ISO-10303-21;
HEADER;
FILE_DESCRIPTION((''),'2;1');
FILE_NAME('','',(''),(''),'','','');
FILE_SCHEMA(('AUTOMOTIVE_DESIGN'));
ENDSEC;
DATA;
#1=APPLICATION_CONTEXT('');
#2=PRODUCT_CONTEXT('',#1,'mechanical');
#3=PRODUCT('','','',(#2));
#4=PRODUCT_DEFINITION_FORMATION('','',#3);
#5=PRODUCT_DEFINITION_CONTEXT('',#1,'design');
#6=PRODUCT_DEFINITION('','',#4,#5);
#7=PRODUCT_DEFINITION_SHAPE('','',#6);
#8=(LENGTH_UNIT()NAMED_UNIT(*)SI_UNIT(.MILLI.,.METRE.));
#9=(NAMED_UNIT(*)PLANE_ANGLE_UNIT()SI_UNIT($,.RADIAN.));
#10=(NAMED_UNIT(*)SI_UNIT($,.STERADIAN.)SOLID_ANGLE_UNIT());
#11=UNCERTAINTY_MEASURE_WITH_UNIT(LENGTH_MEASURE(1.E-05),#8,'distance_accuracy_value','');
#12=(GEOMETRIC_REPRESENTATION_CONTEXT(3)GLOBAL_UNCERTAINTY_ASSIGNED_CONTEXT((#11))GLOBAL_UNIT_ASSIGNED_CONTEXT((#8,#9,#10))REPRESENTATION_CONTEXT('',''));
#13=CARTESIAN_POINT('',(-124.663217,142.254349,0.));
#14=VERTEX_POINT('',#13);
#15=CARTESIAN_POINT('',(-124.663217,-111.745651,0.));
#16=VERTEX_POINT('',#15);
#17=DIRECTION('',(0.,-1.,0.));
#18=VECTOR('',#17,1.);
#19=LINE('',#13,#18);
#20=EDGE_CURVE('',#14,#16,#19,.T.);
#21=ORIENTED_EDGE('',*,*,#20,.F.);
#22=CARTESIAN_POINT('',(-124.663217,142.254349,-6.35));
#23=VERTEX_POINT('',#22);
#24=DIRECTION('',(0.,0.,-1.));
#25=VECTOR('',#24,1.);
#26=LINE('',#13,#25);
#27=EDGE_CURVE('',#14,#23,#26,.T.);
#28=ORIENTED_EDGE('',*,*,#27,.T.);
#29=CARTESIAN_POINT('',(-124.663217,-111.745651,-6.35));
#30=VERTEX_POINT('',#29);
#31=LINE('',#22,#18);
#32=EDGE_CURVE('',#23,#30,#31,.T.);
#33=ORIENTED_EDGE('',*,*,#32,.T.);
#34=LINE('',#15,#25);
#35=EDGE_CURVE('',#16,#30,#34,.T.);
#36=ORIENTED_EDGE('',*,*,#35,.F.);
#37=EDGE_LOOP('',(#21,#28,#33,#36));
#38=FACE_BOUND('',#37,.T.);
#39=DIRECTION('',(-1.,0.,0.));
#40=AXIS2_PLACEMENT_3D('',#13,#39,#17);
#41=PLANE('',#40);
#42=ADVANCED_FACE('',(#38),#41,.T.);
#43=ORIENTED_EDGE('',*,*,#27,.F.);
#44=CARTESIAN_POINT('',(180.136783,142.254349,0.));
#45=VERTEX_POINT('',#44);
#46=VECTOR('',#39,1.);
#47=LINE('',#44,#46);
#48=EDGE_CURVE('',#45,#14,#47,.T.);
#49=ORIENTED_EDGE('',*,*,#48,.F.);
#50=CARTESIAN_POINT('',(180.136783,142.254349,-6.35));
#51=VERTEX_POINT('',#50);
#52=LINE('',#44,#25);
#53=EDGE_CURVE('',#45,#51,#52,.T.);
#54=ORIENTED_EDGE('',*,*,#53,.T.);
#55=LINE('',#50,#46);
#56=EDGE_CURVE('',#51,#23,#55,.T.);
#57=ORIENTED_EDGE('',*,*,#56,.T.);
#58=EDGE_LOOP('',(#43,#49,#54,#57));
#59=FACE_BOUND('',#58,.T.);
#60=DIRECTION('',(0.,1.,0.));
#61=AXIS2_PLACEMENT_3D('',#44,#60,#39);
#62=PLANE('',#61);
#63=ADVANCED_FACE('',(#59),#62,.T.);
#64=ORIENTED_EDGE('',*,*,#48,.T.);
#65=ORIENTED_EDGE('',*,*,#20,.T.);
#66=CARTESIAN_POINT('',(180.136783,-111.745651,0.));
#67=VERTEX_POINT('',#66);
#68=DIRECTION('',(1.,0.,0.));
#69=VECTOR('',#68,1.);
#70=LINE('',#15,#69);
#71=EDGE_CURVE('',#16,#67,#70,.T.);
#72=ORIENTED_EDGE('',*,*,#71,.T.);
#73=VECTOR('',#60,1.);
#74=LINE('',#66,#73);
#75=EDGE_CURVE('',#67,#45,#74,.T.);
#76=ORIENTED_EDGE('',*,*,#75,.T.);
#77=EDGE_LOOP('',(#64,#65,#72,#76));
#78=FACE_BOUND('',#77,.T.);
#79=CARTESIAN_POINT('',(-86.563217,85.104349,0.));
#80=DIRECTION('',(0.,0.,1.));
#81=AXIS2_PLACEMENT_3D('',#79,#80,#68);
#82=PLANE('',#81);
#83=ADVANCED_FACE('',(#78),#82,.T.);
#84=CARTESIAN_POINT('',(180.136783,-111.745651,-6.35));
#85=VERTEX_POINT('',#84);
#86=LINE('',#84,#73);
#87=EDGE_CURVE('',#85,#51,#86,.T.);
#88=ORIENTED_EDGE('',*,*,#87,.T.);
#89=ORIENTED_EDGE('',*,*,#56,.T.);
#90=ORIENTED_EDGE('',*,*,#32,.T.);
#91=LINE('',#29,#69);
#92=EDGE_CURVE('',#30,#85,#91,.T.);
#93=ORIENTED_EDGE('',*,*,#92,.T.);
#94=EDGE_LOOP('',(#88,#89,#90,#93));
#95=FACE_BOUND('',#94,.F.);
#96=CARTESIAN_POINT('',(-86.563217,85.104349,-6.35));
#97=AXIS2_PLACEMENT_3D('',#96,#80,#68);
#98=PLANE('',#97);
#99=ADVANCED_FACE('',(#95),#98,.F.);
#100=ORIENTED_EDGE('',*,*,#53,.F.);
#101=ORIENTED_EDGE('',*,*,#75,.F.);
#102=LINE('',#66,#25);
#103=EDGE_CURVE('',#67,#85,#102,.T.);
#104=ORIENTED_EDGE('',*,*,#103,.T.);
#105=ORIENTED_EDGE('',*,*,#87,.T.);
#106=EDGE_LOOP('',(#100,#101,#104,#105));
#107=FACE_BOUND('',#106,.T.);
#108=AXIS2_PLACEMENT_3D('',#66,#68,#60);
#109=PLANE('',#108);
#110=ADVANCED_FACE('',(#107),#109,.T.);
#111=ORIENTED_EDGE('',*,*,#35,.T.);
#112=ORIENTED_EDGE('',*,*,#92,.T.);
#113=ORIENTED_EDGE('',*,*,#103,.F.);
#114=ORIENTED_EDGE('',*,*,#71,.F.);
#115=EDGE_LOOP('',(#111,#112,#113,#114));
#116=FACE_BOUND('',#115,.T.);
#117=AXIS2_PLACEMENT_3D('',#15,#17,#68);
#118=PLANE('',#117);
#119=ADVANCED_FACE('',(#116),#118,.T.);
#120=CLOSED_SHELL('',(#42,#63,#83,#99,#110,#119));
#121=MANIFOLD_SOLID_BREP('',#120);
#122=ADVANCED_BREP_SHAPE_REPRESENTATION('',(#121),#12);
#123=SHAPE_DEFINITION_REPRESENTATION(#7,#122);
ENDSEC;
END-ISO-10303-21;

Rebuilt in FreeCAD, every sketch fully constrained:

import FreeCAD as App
import Part
import Sketcher
from FreeCAD import Vector
Q = App.Units.Quantity

doc = App.newDocument("Part")
body = doc.addObject("PartDesign::Body", "Body")

# Sketch on XY plane
sketch1 = body.newObject("Sketcher::SketchObject", "Sketch")
sketch1.AttachmentSupport = (doc.getObject("XY_Plane"), [""])
sketch1.MapMode = "FlatFace"
sketch1.addGeometry(Part.LineSegment(Vector(-125, 142, 0), Vector(-125, -112, 0)), False)
sketch1.addGeometry(Part.LineSegment(Vector(-125, -112, 0), Vector(180, -112, 0)), False)
sketch1.addGeometry(Part.LineSegment(Vector(180, -112, 0), Vector(180, 142, 0)), False)
sketch1.addGeometry(Part.LineSegment(Vector(180, 142, 0), Vector(-125, 142, 0)), False)
sketch1.addConstraint(Sketcher.Constraint("Coincident", 0, 2, 1, 1))
sketch1.addConstraint(Sketcher.Constraint("Coincident", 1, 2, 2, 1))
sketch1.addConstraint(Sketcher.Constraint("Coincident", 2, 2, 3, 1))
sketch1.addConstraint(Sketcher.Constraint("Coincident", 3, 2, 0, 1))
sketch1.addConstraint(Sketcher.Constraint("Vertical", 0))
sketch1.addConstraint(Sketcher.Constraint("Horizontal", 1))
sketch1.addConstraint(Sketcher.Constraint("Vertical", 2))
sketch1.addConstraint(Sketcher.Constraint("Horizontal", 3))
sketch1.addConstraint(Sketcher.Constraint("DistanceX", 1, 1, 1, 2, Q("12 in")))
sketch1.addConstraint(Sketcher.Constraint("DistanceY", 0, 2, 0, 1, Q("10 in")))
sketch1.addConstraint(Sketcher.Constraint("DistanceY", 0, 2, -1, 1, 111.745651))
sketch1.addConstraint(Sketcher.Constraint("DistanceX", 0, 2, -1, 1, 124.663217))
pad1 = body.newObject("PartDesign::Pad", "Pad")
pad1.Profile = sketch1
pad1.Length = Q("0.25 in")
pad1.Reversed = True

doc.recompute()
